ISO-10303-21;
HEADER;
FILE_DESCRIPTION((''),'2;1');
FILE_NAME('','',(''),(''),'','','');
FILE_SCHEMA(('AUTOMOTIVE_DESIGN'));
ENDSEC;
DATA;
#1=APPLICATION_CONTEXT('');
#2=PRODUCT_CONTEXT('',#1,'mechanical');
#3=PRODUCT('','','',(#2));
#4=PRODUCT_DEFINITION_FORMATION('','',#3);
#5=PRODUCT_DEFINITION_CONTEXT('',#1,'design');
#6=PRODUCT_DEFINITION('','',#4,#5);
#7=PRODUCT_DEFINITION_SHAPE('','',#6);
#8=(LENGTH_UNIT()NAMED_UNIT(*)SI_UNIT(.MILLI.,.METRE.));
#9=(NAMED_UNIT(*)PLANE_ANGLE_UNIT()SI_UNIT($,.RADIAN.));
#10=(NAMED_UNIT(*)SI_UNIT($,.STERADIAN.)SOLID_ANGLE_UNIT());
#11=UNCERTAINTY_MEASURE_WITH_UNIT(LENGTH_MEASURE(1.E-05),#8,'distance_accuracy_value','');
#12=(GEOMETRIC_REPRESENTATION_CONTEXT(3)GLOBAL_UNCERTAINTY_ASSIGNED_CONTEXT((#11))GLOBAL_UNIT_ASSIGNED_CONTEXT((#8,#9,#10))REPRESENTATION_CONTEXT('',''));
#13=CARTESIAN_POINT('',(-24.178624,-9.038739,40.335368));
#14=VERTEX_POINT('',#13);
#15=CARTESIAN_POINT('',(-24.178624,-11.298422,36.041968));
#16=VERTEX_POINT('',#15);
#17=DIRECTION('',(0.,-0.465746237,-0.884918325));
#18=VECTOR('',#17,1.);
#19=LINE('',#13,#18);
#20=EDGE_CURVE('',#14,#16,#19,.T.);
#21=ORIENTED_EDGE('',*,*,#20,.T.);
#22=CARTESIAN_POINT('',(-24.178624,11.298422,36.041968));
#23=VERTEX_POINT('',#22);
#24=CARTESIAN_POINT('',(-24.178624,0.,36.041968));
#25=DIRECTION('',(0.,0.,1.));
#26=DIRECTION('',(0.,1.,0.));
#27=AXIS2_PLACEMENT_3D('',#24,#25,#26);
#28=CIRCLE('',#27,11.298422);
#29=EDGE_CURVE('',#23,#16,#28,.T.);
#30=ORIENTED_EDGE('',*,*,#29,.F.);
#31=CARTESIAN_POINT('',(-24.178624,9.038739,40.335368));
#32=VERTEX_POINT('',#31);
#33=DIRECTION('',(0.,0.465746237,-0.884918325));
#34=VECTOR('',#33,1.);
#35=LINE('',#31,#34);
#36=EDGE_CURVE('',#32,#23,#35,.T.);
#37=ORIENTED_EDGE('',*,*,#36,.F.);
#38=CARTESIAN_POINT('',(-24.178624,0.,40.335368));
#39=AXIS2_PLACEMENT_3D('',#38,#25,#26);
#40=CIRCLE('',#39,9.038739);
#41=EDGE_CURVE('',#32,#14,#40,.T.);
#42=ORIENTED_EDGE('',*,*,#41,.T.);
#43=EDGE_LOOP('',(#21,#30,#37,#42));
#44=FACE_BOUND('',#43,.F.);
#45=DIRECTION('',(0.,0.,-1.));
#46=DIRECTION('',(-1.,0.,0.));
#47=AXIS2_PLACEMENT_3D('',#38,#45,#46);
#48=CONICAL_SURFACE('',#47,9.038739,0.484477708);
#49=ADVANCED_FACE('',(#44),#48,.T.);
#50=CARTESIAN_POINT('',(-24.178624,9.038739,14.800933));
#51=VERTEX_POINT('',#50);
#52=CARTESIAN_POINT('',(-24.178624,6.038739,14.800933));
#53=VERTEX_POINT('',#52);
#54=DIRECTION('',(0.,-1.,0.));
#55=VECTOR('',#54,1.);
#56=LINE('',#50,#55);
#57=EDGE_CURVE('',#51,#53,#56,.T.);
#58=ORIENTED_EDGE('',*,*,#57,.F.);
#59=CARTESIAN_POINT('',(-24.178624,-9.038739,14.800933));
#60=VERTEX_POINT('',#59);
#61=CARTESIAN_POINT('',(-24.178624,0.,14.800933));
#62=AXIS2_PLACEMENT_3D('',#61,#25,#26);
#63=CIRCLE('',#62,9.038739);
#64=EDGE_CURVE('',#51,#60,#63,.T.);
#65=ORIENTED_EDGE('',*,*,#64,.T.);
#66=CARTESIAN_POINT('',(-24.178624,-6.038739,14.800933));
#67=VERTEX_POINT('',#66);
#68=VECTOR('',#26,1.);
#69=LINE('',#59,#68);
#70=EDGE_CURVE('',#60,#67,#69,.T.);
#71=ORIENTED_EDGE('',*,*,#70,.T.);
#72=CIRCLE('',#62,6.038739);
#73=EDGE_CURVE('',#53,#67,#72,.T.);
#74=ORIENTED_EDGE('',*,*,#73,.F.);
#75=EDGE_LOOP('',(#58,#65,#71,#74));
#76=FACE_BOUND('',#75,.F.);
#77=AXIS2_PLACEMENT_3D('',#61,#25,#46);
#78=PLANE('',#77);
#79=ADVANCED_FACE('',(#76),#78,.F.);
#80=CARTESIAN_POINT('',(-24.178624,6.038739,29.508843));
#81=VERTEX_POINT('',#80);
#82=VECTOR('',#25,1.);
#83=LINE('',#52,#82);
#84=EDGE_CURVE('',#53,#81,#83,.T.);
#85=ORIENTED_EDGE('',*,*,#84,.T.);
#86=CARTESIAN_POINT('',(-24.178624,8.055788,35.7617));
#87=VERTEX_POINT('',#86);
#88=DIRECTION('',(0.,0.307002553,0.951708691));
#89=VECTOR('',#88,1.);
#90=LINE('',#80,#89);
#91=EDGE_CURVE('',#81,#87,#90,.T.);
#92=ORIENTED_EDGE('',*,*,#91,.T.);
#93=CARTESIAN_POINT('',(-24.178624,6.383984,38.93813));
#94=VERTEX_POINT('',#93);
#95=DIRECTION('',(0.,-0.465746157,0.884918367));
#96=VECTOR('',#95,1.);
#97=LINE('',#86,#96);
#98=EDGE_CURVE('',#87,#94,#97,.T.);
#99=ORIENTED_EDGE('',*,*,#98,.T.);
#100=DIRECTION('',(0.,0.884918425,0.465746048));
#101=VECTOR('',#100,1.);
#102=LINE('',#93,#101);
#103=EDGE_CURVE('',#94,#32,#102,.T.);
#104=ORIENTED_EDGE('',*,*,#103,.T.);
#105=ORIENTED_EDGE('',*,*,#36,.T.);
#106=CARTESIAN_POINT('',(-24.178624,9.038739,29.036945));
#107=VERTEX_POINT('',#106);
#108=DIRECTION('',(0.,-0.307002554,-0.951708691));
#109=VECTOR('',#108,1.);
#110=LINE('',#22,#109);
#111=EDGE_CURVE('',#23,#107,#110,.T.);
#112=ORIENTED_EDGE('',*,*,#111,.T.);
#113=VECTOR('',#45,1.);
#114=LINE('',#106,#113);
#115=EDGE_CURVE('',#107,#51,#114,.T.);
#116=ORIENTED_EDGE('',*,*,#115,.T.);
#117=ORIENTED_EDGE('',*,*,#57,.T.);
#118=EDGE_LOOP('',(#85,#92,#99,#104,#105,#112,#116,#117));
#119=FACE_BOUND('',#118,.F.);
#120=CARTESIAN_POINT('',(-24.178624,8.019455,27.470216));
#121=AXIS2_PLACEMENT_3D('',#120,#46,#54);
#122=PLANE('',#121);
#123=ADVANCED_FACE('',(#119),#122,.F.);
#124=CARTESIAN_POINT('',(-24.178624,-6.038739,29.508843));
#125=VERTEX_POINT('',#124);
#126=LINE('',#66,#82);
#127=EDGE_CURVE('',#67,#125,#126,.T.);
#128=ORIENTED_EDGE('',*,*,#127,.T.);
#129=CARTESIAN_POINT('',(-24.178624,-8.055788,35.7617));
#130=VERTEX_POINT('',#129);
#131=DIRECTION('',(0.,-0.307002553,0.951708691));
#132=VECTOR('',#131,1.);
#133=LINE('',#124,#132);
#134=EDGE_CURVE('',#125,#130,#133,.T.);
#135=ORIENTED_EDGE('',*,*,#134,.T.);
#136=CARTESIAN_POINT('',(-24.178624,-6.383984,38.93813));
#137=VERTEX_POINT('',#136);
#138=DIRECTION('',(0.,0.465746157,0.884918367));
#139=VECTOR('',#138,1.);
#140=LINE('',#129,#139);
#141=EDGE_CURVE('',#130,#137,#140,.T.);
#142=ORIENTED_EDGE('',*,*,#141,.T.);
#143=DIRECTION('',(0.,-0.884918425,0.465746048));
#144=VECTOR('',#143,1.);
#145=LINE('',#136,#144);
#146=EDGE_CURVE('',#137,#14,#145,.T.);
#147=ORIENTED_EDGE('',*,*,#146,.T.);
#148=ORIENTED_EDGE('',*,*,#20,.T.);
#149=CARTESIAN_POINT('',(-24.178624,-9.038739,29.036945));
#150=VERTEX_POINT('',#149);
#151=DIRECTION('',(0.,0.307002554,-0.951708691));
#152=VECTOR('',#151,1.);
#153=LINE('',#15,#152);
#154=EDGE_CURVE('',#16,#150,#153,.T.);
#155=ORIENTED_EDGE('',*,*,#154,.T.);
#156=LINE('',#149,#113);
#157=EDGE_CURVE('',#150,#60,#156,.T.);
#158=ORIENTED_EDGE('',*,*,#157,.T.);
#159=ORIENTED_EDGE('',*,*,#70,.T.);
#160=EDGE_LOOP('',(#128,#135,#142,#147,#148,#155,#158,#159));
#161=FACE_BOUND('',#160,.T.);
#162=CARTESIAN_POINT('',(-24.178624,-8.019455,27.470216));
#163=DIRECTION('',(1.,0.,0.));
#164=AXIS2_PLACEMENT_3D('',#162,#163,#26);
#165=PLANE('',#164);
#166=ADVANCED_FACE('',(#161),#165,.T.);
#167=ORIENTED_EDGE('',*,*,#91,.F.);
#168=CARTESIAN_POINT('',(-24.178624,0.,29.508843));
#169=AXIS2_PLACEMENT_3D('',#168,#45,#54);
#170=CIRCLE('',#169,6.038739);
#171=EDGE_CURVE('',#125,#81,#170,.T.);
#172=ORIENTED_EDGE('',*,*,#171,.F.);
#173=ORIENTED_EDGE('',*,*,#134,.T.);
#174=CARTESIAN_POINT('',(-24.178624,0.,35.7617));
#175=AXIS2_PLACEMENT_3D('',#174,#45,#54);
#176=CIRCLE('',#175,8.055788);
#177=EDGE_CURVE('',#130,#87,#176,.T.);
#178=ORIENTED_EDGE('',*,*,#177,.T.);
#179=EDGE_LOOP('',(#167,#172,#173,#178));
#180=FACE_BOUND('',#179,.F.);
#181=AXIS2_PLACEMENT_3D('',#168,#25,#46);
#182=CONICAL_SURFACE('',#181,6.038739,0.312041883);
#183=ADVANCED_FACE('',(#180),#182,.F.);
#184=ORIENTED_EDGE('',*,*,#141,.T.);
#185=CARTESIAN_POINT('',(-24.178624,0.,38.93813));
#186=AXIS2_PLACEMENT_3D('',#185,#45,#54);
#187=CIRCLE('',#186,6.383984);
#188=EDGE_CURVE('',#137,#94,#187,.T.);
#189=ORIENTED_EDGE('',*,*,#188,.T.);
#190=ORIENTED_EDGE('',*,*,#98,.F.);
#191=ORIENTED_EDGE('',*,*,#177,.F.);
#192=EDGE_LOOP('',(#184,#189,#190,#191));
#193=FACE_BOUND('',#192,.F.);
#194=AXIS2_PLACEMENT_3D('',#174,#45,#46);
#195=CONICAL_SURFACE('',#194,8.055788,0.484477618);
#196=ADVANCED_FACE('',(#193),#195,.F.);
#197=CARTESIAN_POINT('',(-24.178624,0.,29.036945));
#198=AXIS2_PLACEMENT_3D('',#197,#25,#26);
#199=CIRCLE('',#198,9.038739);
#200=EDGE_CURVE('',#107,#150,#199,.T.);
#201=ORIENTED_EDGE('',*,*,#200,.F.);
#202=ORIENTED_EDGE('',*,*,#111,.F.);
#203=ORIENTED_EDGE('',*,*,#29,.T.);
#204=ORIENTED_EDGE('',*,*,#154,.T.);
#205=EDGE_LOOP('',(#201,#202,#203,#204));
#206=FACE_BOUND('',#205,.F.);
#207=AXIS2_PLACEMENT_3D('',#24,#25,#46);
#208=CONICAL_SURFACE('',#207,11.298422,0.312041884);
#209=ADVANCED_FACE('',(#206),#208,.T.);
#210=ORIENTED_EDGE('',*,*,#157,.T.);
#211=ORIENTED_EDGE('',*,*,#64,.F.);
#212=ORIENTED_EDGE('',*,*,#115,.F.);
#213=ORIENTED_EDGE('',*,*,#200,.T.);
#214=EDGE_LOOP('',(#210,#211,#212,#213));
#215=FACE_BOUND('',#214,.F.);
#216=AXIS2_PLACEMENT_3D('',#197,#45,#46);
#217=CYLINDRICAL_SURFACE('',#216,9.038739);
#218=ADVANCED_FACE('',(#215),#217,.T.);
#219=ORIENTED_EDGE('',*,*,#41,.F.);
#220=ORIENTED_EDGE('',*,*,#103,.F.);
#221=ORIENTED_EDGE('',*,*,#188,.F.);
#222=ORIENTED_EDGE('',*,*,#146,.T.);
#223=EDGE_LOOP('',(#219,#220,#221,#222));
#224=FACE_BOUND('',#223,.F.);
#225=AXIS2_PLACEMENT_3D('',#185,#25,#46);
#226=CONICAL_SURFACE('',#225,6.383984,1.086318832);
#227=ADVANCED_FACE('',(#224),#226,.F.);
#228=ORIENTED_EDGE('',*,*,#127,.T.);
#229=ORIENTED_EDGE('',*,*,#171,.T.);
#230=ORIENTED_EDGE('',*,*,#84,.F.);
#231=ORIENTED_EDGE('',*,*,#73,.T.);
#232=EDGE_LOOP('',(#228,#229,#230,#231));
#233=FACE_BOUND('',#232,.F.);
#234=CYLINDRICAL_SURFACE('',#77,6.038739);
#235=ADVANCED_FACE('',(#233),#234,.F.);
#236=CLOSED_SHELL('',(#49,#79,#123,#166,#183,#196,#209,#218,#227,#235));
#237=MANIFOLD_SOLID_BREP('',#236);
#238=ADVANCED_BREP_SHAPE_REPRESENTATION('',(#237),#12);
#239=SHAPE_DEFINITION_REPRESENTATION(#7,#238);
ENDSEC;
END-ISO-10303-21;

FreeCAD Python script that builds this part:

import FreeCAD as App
import Part
import Sketcher
from FreeCAD import Vector

doc = App.newDocument("Part")
body = doc.addObject("PartDesign::Body", "Body")

sketch1 = body.newObject("Sketcher::SketchObject", "Sketch")
sketch1.AttachmentSupport = (doc.getObject("XZ_Plane"), [""])
sketch1.MapMode = "FlatFace"
sketch1.addGeometry([
    Part.LineSegment(Vector(-30.6, 38.9, 0), Vector(-33.2, 40.3, 0)),
    Part.LineSegment(Vector(-33.2, 40.3, 0), Vector(-35.5, 36, 0)),
    Part.LineSegment(Vector(-35.5, 36, 0), Vector(-33.2, 29, 0)),
    Part.LineSegment(Vector(-33.2, 29, 0), Vector(-33.2, 14.8, 0)),
    Part.LineSegment(Vector(-33.2, 14.8, 0), Vector(-30.2, 14.8, 0)),
    Part.LineSegment(Vector(-30.2, 14.8, 0), Vector(-30.2, 29.5, 0)),
    Part.LineSegment(Vector(-30.2, 29.5, 0), Vector(-32.2, 35.8, 0)),
    Part.LineSegment(Vector(-32.2, 35.8, 0), Vector(-30.6, 38.9, 0)),
], False)
sketch1.addGeometry(Part.LineSegment(Vector(-24.2, 40.3, 0), Vector(-24.2, 14.8, 0)), True)
sketch1.addConstraint([
    Sketcher.Constraint("Coincident", 0, 2, 1, 1),
    Sketcher.Constraint("Coincident", 1, 2, 2, 1),
    Sketcher.Constraint("Coincident", 2, 2, 3, 1),
    Sketcher.Constraint("Coincident", 3, 2, 4, 1),
    Sketcher.Constraint("Coincident", 4, 2, 5, 1),
    Sketcher.Constraint("Coincident", 5, 2, 6, 1),
    Sketcher.Constraint("Coincident", 6, 2, 7, 1),
    Sketcher.Constraint("Coincident", 7, 2, 0, 1),
    Sketcher.Constraint("Vertical", 3),
    Sketcher.Constraint("Horizontal", 4),
    Sketcher.Constraint("Vertical", 5),
    Sketcher.Constraint("Vertical", 8),
    Sketcher.Constraint("Perpendicular", 0, 1),
    Sketcher.Constraint("Parallel", 2, 6),
    Sketcher.Constraint("Parallel", 1, 7),
    Sketcher.Constraint("Horizontal", 0, 2, 8, 1),
    Sketcher.Constraint("Horizontal", 4, 2, 8, 2),
    Sketcher.Constraint("Vertical", 0, 2, 2, 2),
    Sketcher.Constraint("DistanceX", 4, 1, 4, 2, 3.0),
    Sketcher.Constraint("Distance", 0, 3.0),
    Sketcher.Constraint("DistanceY", 3, 2, 3, 1, 14.236012),
    Sketcher.Constraint("DistanceY", 5, 1, 5, 2, 14.70791),
    Sketcher.Constraint("DistanceY", -1, 1, 6, 2, 35.7617),
    Sketcher.Constraint("DistanceY", 1, 2, 0, 2, 4.2934),
    Sketcher.Constraint("Distance", 2, 7.36047),
    Sketcher.Constraint("DistanceY", 8, 2, 8, 1, 25.534435),
    Sketcher.Constraint("DistanceX", 7, 2, -1, 1, 30.562608),
    Sketcher.Constraint("DistanceX", 0, 2, 8, 1, 9.038739),
])
revolution = body.newObject("PartDesign::Revolution", "Revolution")
revolution.Profile = sketch1
revolution.ReferenceAxis = (sketch1, ["Axis0"])
revolution.Angle = 90

sketch2 = body.newObject("Sketcher::SketchObject", "Sketch001")
sketch2.AttachmentSupport = (doc.getObject("XZ_Plane"), [""])
sketch2.MapMode = "FlatFace"
sketch2.addGeometry([
    Part.LineSegment(Vector(-30.6, 38.9, 0), Vector(-33.2, 40.3, 0)),
    Part.LineSegment(Vector(-33.2, 40.3, 0), Vector(-35.5, 36, 0)),
    Part.LineSegment(Vector(-35.5, 36, 0), Vector(-33.2, 29, 0)),
    Part.LineSegment(Vector(-33.2, 29, 0), Vector(-33.2, 14.8, 0)),
    Part.LineSegment(Vector(-33.2, 14.8, 0), Vector(-30.2, 14.8, 0)),
    Part.LineSegment(Vector(-30.2, 14.8, 0), Vector(-30.2, 29.5, 0)),
    Part.LineSegment(Vector(-30.2, 29.5, 0), Vector(-32.2, 35.8, 0)),
    Part.LineSegment(Vector(-32.2, 35.8, 0), Vector(-30.6, 38.9, 0)),
], False)
sketch2.addGeometry(Part.LineSegment(Vector(-24.2, 14.8, 0), Vector(-24.2, 40.3, 0)), True)
sketch2.addConstraint([
    Sketcher.Constraint("Coincident", 0, 2, 1, 1),
    Sketcher.Constraint("Coincident", 1, 2, 2, 1),
    Sketcher.Constraint("Coincident", 2, 2, 3, 1),
    Sketcher.Constraint("Coincident", 3, 2, 4, 1),
    Sketcher.Constraint("Coincident", 4, 2, 5, 1),
    Sketcher.Constraint("Coincident", 5, 2, 6, 1),
    Sketcher.Constraint("Coincident", 6, 2, 7, 1),
    Sketcher.Constraint("Coincident", 7, 2, 0, 1),
    Sketcher.Constraint("Vertical", 3),
    Sketcher.Constraint("Horizontal", 4),
    Sketcher.Constraint("Vertical", 5),
    Sketcher.Constraint("Vertical", 8),
    Sketcher.Constraint("Perpendicular", 0, 1),
    Sketcher.Constraint("Parallel", 2, 6),
    Sketcher.Constraint("Parallel", 1, 7),
    Sketcher.Constraint("Horizontal", 4, 2, 8, 1),
    Sketcher.Constraint("Horizontal", 0, 2, 8, 2),
    Sketcher.Constraint("Vertical", 0, 2, 2, 2),
    Sketcher.Constraint("DistanceX", 4, 1, 4, 2, 3.0),
    Sketcher.Constraint("Distance", 0, 3.0),
    Sketcher.Constraint("DistanceY", 3, 2, 3, 1, 14.236012),
    Sketcher.Constraint("DistanceY", 5, 1, 5, 2, 14.70791),
    Sketcher.Constraint("DistanceY", -1, 1, 6, 2, 35.7617),
    Sketcher.Constraint("DistanceY", 1, 2, 0, 2, 4.2934),
    Sketcher.Constraint("Distance", 2, 7.36047),
    Sketcher.Constraint("DistanceY", 8, 1, 8, 2, 25.534435),
    Sketcher.Constraint("DistanceX", 7, 2, -1, 1, 30.562608),
    Sketcher.Constraint("DistanceX", 4, 2, 8, 1, 6.038739),
])
revolution2 = body.newObject("PartDesign::Revolution", "Revolution001")
revolution2.Profile = sketch2
revolution2.ReferenceAxis = (sketch2, ["Axis0"])
revolution2.Angle = 90

doc.recompute()
